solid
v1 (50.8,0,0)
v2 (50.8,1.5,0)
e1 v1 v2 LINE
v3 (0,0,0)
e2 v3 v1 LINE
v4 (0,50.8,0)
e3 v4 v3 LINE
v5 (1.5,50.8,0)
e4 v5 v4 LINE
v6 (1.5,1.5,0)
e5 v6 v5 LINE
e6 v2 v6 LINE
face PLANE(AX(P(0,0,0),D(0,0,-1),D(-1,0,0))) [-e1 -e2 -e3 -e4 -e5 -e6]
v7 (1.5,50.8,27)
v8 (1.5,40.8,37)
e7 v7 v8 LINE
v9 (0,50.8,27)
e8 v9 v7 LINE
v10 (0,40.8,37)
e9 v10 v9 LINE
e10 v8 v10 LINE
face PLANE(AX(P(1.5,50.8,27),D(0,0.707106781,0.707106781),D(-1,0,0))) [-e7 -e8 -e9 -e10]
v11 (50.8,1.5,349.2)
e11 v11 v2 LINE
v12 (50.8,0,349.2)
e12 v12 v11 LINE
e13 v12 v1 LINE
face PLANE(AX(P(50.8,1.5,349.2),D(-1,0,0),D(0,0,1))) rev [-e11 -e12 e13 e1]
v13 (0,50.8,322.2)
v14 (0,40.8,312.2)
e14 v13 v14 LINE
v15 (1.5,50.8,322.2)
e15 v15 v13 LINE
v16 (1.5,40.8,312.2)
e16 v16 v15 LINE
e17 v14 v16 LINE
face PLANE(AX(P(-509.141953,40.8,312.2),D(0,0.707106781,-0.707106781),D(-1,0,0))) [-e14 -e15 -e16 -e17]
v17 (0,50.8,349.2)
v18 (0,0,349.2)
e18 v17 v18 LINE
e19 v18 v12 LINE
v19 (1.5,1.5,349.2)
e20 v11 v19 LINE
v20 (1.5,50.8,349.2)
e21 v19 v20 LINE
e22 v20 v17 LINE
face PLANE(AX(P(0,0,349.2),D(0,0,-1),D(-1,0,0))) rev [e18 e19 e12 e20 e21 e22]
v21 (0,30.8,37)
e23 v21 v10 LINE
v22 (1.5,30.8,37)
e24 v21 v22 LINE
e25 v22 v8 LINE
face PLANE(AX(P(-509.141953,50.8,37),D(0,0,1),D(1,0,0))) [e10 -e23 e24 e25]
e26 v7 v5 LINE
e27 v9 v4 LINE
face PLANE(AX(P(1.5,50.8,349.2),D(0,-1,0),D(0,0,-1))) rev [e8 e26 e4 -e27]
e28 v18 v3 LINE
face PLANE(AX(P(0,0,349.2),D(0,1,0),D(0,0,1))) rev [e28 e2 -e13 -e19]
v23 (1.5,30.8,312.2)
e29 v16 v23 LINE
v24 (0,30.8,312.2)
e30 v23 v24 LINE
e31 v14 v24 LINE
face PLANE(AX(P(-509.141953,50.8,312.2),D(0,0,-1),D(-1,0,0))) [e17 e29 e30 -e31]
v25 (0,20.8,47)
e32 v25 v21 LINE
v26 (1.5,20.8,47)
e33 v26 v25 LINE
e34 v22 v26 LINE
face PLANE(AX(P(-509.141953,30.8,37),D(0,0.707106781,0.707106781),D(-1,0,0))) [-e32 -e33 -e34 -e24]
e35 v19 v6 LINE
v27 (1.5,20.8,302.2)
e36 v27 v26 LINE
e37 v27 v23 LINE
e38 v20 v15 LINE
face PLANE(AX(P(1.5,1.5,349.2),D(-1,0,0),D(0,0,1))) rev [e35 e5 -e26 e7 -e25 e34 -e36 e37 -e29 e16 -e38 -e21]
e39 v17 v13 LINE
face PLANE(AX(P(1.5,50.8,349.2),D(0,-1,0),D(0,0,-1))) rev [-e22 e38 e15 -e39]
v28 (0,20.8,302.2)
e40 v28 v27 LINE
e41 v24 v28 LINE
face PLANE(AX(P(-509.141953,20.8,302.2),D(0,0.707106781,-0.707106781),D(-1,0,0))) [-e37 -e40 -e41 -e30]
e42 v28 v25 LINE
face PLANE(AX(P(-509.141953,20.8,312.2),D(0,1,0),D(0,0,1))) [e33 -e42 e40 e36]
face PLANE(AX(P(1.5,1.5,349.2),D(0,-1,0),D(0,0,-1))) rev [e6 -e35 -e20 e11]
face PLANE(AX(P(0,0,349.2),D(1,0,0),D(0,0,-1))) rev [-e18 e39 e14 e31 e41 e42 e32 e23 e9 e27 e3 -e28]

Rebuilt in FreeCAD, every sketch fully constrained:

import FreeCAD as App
import Part
import Sketcher

V = App.Vector
Q = App.Units.Quantity


def edges_at(feature, points):
    """Names of the edges that pass closest to the given points."""
    edges = feature.Shape.Edges
    near = lambda p: min(range(len(edges)), key=lambda i: edges[i].distToShape(Part.Vertex(*p))[0])
    return sorted({f"Edge{near(p) + 1}" for p in points})

doc = App.newDocument("Part")
body = doc.addObject("PartDesign::Body", "Body")

sketch1 = body.newObject("Sketcher::SketchObject", "Sketch")
sketch1.AttachmentSupport = (doc.getObject("XY_Plane"), [""])
sketch1.MapMode = "FlatFace"
sketch1.addGeometry([
    Part.LineSegment(V(0, 50.8, 0), V(0, 0, 0)),
    Part.LineSegment(V(0, 0, 0), V(50.8, 0, 0)),
    Part.LineSegment(V(50.8, 0, 0), V(50.8, 1.5, 0)),
    Part.LineSegment(V(50.8, 1.5, 0), V(1.5, 1.5, 0)),
    Part.LineSegment(V(1.5, 1.5, 0), V(1.5, 50.8, 0)),
    Part.LineSegment(V(1.5, 50.8, 0), V(0, 50.8, 0)),
], False)
sketch1.addConstraint([
    Sketcher.Constraint("Coincident", 0, 2, 1, 1),
    Sketcher.Constraint("Coincident", 1, 2, 2, 1),
    Sketcher.Constraint("Coincident", 2, 2, 3, 1),
    Sketcher.Constraint("Coincident", 3, 2, 4, 1),
    Sketcher.Constraint("Coincident", 4, 2, 5, 1),
    Sketcher.Constraint("Coincident", 5, 2, 0, 1),
    Sketcher.Constraint("Vertical", 0),
    Sketcher.Constraint("Horizontal", 1),
    Sketcher.Constraint("Vertical", 2),
    Sketcher.Constraint("Horizontal", 3),
    Sketcher.Constraint("Vertical", 4),
    Sketcher.Constraint("Horizontal", 5),
    Sketcher.Constraint("Coincident", 0, 2, -1, 1),
    Sketcher.Constraint("Equal", 1, 0),
    Sketcher.Constraint("Equal", 5, 2),
    Sketcher.Constraint("DistanceX", 1, 1, 1, 2, Q("50.8 mm")),
    Sketcher.Constraint("DistanceX", 3, 2, 3, 1, Q("49.3 mm")),
])
pad1 = body.newObject("PartDesign::Pad", "Pad")
pad1.Profile = sketch1
pad1.Length = 349.2

sketch2 = body.newObject("Sketcher::SketchObject", "Sketch001")
sketch2.AttachmentSupport = (doc.getObject("YZ_Plane"), [""])
sketch2.MapMode = "FlatFace"
sketch2.addGeometry([
    Part.LineSegment(V(51, 37, 0), V(21, 37, 0)),
    Part.LineSegment(V(21, 37, 0), V(21, 312, 0)),
    Part.LineSegment(V(21, 312, 0), V(51, 312, 0)),
    Part.LineSegment(V(51, 312, 0), V(51, 37, 0)),
], False)
sketch2.addConstraint([
    Sketcher.Constraint("Coincident", 0, 2, 1, 1),
    Sketcher.Constraint("Coincident", 1, 2, 2, 1),
    Sketcher.Constraint("Coincident", 2, 2, 3, 1),
    Sketcher.Constraint("Coincident", 3, 2, 0, 1),
    Sketcher.Constraint("Horizontal", 0),
    Sketcher.Constraint("Vertical", 1),
    Sketcher.Constraint("Horizontal", 2),
    Sketcher.Constraint("Vertical", 3),
    Sketcher.Constraint("DistanceX", 0, 2, 0, 1, Q("30 mm")),
    Sketcher.Constraint("DistanceY", 1, 1, 1, 2, Q("275.2 mm")),
    Sketcher.Constraint("DistanceY", -1, 1, 0, 2, Q("37 mm")),
    Sketcher.Constraint("DistanceX", -1, 1, 0, 2, Q("20.8 mm")),
])
pocket1 = body.newObject("PartDesign::Pocket", "Pocket")
pocket1.Profile = sketch2
pocket1.Type = "ThroughAll"
pocket1.Midplane = True
doc.recompute()

chamfer = body.newObject("PartDesign::Chamfer", "Chamfer")
chamfer.Base = (pocket1, edges_at(pocket1, [
    (0.75, 20.8, 37),
    (0.75, 20.8, 312.2),
    (0.75, 50.8, 312.2),
    (0.75, 50.8, 37),
]))
chamfer.Size = 10

doc.recompute()
